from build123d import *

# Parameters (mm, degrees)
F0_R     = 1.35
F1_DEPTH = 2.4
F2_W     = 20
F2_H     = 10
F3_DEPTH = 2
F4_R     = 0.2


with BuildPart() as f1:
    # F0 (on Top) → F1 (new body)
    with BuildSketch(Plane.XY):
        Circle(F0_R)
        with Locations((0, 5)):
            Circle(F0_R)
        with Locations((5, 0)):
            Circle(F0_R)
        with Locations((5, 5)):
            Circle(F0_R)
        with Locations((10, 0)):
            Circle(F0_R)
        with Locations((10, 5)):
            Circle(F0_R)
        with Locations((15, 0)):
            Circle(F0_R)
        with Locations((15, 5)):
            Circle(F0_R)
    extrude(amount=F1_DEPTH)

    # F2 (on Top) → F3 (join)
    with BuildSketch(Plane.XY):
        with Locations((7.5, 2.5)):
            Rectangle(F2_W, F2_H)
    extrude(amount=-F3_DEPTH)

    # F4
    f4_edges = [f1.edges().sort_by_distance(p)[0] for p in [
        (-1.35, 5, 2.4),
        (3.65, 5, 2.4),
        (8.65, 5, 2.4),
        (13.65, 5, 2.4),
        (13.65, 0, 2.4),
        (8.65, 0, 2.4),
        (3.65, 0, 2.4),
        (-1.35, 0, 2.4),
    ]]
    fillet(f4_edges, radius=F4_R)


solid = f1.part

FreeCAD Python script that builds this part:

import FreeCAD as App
import Part
import Sketcher

V = App.Vector
Q = App.Units.Quantity


def edges_at(feature, points):
    """Names of the edges that pass closest to the given points."""
    edges = feature.Shape.Edges
    near = lambda p: min(range(len(edges)), key=lambda i: edges[i].distToShape(Part.Vertex(*p))[0])
    return sorted({f"Edge{near(p) + 1}" for p in points})


def add_polygon(sketch, points):
    """Adds a closed chain of lines whose ends are joined by coincident constraints."""
    first, n = sketch.GeometryCount, len(points)
    for a, b in zip(points, points[1:] + points[:1]):
        sketch.addGeometry(Part.LineSegment(App.Vector(*a, 0), App.Vector(*b, 0)), False)
    for i in range(n):
        sketch.addConstraint(Sketcher.Constraint("Coincident", first + i, 2, first + (i + 1) % n, 1))

doc = App.newDocument("Part")
body = doc.addObject("PartDesign::Body", "Body")
body.AllowCompound = True

sketch1 = body.newObject("Sketcher::SketchObject", "Sketch")
sketch1.AttachmentSupport = (doc.getObject("XY_Plane"), [""])
sketch1.MapMode = "FlatFace"
sketch1.addGeometry(Part.Circle(V(0, 0, 0), V(0, 0, 1), 1.4), False)
sketch1.addGeometry(Part.Circle(V(0, 5, 0), V(0, 0, 1), 1.4), False)
sketch1.addGeometry(Part.Circle(V(5, 0, 0), V(0, 0, 1), 1.4), False)
sketch1.addGeometry(Part.Circle(V(5, 5, 0), V(0, 0, 1), 1.4), False)
sketch1.addGeometry(Part.Circle(V(10, 0, 0), V(0, 0, 1), 1.4), False)
sketch1.addGeometry(Part.Circle(V(10, 5, 0), V(0, 0, 1), 1.4), False)
sketch1.addGeometry(Part.Circle(V(15, 0, 0), V(0, 0, 1), 1.4), False)
sketch1.addGeometry(Part.Circle(V(15, 5, 0), V(0, 0, 1), 1.4), False)
sketch1.addConstraint(Sketcher.Constraint("Coincident", 0, 3, -1, 1))
sketch1.addConstraint(Sketcher.Constraint("Equal", 0, 1))
sketch1.addConstraint(Sketcher.Constraint("Equal", 1, 2))
sketch1.addConstraint(Sketcher.Constraint("Equal", 2, 3))
sketch1.addConstraint(Sketcher.Constraint("Equal", 3, 4))
sketch1.addConstraint(Sketcher.Constraint("Equal", 4, 5))
sketch1.addConstraint(Sketcher.Constraint("Equal", 5, 6))
sketch1.addConstraint(Sketcher.Constraint("Equal", 6, 7))
sketch1.addConstraint(Sketcher.Constraint("PointOnObject", 1, 3, -2))
sketch1.addConstraint(Sketcher.Constraint("PointOnObject", 2, 3, -1))
sketch1.addConstraint(Sketcher.Constraint("PointOnObject", 4, 3, -1))
sketch1.addConstraint(Sketcher.Constraint("PointOnObject", 6, 3, -1))
sketch1.addConstraint(Sketcher.Constraint("Horizontal", 1, 3, 3, 3))
sketch1.addConstraint(Sketcher.Constraint("Horizontal", 3, 3, 5, 3))
sketch1.addConstraint(Sketcher.Constraint("Horizontal", 5, 3, 7, 3))
sketch1.addConstraint(Sketcher.Constraint("Vertical", 2, 3, 3, 3))
sketch1.addConstraint(Sketcher.Constraint("Vertical", 4, 3, 5, 3))
sketch1.addConstraint(Sketcher.Constraint("Vertical", 6, 3, 7, 3))
sketch1.addConstraint(Sketcher.Constraint("Diameter", 0, Q("2.7 mm")))
sketch1.addConstraint(Sketcher.Constraint("DistanceY", -1, 1, 1, 3, Q("5 mm")))
sketch1.addConstraint(Sketcher.Constraint("DistanceX", -1, 1, 2, 3, Q("5 mm")))
sketch1.addConstraint(Sketcher.Constraint("DistanceX", -1, 1, 4, 3, Q("10 mm")))
sketch1.addConstraint(Sketcher.Constraint("DistanceX", -1, 1, 6, 3, Q("15 mm")))
pad1 = body.newObject("PartDesign::Pad", "Pad")
pad1.Profile = sketch1
pad1.Length = 2.4

sketch2 = body.newObject("Sketcher::SketchObject", "Sketch001")
sketch2.AttachmentSupport = (doc.getObject("XY_Plane"), [""])
sketch2.MapMode = "FlatFace"
add_polygon(sketch2, [(-2, 8), (-2, -2), (18, -2), (18, 8)])
sketch2.addConstraint(Sketcher.Constraint("Vertical", 0))
sketch2.addConstraint(Sketcher.Constraint("Horizontal", 1))
sketch2.addConstraint(Sketcher.Constraint("Vertical", 2))
sketch2.addConstraint(Sketcher.Constraint("Horizontal", 3))
sketch2.addConstraint(Sketcher.Constraint("DistanceX", 1, 1, 1, 2, Q("20 mm")))
sketch2.addConstraint(Sketcher.Constraint("DistanceY", 0, 2, 0, 1, Q("10 mm")))
sketch2.addConstraint(Sketcher.Constraint("DistanceX", 0, 2, -1, 1, Q("2.5 mm")))
sketch2.addConstraint(Sketcher.Constraint("DistanceY", 0, 2, -1, 1, Q("2.5 mm")))
pad2 = body.newObject("PartDesign::Pad", "Pad001")
pad2.Profile = sketch2
pad2.Length = 2
pad2.Reversed = True
doc.recompute()

fillet = body.newObject("PartDesign::Fillet", "Fillet")
fillet.Base = (pad2, edges_at(pad2, [
    (-1.35, 5, 2.4),
    (3.65, 5, 2.4),
    (8.65, 5, 2.4),
    (13.65, 5, 2.4),
    (13.65, 0, 2.4),
    (8.65, 0, 2.4),
    (3.65, 0, 2.4),
    (-1.35, 0, 2.4),
]))
fillet.Radius = 0.2

doc.recompute()
